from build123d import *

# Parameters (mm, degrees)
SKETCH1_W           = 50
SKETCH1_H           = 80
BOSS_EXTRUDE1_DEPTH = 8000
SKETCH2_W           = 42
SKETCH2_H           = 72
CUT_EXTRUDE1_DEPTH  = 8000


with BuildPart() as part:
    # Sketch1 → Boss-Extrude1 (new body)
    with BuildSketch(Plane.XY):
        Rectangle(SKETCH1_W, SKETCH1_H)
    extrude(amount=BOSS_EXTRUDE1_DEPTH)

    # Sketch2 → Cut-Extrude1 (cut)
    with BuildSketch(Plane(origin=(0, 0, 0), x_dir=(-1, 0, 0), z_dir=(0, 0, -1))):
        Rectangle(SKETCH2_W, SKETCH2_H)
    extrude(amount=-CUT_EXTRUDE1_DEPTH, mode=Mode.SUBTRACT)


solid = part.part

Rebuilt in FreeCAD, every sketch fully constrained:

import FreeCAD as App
import Part
import Sketcher


def add_polygon(sketch, points):
    """Adds a closed chain of lines whose ends are joined by coincident constraints."""
    first, n = sketch.GeometryCount, len(points)
    for a, b in zip(points, points[1:] + points[:1]):
        sketch.addGeometry(Part.LineSegment(App.Vector(*a, 0), App.Vector(*b, 0)), False)
    for i in range(n):
        sketch.addConstraint(Sketcher.Constraint("Coincident", first + i, 2, first + (i + 1) % n, 1))

doc = App.newDocument("Part")
body = doc.addObject("PartDesign::Body", "Body")

sketch1 = doc.addObject("Sketcher::SketchObject", "Sketch")
body.addObject(sketch1)
sketch1.AttachmentSupport = (doc.XY_Plane, [""])
sketch1.MapMode = "FlatFace"
add_polygon(sketch1, [(-25, 40), (-25, -40), (25, -40), (25, 40)])
sketch1.addConstraint([
    Sketcher.Constraint("Vertical", 0),
    Sketcher.Constraint("Horizontal", 1),
    Sketcher.Constraint("Vertical", 2),
    Sketcher.Constraint("Horizontal", 3),
    Sketcher.Constraint("Symmetric", 0, 2, 2, 2, -1, 1),
    Sketcher.Constraint("DistanceX", 1, 1, 1, 2, 50.0),
    Sketcher.Constraint("DistanceY", 0, 2, 0, 1, 80.0),
])
pad1 = doc.addObject("PartDesign::Pad", "Pad")
body.addObject(pad1)
pad1.Profile = sketch1
pad1.Length = 8000

sketch2 = doc.addObject("Sketcher::SketchObject", "Sketch001")
body.addObject(sketch2)
sketch2.AttachmentSupport = (doc.XY_Plane, [""])
sketch2.MapMode = "FlatFace"
add_polygon(sketch2, [(21, 36), (21, -36), (-21, -36), (-21, 36)])
sketch2.addConstraint([
    Sketcher.Constraint("Vertical", 0),
    Sketcher.Constraint("Horizontal", 1),
    Sketcher.Constraint("Vertical", 2),
    Sketcher.Constraint("Horizontal", 3),
    Sketcher.Constraint("Symmetric", 0, 2, 2, 2, -1, 1),
    Sketcher.Constraint("DistanceX", 1, 2, 1, 1, 42.0),
    Sketcher.Constraint("DistanceY", 0, 2, 0, 1, 72.0),
])
pocket1 = doc.addObject("PartDesign::Pocket", "Pocket")
body.addObject(pocket1)
pocket1.Profile = sketch2
pocket1.Length = 8000
pocket1.Reversed = True

doc.recompute()
